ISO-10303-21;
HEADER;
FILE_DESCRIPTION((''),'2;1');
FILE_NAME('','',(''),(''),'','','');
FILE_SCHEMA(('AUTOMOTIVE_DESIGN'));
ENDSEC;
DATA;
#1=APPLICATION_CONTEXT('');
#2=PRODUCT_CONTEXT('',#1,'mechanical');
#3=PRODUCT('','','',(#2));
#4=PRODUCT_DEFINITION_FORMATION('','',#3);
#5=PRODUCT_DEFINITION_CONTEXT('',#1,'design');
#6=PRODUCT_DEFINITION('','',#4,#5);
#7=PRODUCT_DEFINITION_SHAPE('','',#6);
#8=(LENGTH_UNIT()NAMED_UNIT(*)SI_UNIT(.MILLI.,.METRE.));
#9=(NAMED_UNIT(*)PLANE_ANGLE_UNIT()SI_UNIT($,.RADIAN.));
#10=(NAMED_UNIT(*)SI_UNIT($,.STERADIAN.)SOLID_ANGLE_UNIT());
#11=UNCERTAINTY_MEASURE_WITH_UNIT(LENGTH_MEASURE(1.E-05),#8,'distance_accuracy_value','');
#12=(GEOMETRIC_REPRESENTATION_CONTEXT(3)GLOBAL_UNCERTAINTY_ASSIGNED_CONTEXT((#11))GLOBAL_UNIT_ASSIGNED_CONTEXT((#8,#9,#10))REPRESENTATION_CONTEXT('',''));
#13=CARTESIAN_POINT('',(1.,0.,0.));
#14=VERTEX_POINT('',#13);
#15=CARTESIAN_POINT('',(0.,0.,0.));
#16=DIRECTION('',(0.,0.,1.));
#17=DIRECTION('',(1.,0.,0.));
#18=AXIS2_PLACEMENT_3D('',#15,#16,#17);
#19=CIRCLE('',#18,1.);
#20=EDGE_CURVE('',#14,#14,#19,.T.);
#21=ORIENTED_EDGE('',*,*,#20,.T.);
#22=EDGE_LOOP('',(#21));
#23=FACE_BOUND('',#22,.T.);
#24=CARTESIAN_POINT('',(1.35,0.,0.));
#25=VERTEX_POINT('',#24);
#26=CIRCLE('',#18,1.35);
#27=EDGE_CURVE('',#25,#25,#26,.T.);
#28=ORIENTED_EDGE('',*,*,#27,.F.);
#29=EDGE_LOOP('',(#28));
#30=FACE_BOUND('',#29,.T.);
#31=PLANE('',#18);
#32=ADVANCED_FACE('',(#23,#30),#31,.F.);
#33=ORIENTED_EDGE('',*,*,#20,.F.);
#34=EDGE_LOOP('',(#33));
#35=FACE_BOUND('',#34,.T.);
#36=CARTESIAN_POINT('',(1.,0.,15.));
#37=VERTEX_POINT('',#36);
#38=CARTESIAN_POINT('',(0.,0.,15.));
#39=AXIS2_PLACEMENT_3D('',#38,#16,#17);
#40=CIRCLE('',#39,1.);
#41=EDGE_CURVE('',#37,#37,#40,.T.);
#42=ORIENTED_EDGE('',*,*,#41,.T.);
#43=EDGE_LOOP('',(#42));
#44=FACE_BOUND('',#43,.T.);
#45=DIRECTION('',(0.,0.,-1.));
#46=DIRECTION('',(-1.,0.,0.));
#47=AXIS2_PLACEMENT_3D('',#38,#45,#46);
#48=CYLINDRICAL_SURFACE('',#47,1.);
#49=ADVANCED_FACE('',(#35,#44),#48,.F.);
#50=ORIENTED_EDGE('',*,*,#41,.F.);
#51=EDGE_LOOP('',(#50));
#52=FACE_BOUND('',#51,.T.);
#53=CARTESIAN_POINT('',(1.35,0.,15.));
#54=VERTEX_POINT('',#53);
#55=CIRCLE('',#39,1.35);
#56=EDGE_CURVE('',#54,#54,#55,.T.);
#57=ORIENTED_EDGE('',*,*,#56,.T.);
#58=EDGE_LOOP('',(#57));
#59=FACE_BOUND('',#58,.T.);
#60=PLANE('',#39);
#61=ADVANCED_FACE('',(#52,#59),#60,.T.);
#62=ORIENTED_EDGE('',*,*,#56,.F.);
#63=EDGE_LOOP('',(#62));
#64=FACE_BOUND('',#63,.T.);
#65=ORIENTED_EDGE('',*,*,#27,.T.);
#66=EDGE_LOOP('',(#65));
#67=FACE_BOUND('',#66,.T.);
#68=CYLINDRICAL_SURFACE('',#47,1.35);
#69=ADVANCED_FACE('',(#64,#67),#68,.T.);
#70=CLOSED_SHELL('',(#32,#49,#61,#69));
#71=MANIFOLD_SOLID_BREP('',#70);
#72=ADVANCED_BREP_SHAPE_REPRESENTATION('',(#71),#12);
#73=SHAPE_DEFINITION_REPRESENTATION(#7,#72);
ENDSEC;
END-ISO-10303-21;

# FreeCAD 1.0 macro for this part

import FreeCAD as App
import Part
import Sketcher
from FreeCAD import Vector

doc = App.newDocument("Part")
body = doc.addObject("PartDesign::Body", "Body")

# Sketch on XY plane
sketch1 = doc.addObject("Sketcher::SketchObject", "Sketch")
body.addObject(sketch1)
sketch1.AttachmentSupport = (doc.XY_Plane, [""])
sketch1.MapMode = "FlatFace"
sketch1.addGeometry([
    Part.Circle(Vector(0, 0, 0), Vector(0, 0, 1), 1.4),
    Part.Circle(Vector(0, 0, 0), Vector(0, 0, 1), 1),
], False)
sketch1.addConstraint([
    Sketcher.Constraint("Coincident", 0, 3, -1, 1),
    Sketcher.Constraint("Coincident", 1, 3, -1, 1),
    Sketcher.Constraint("Diameter", 1, 2.0),
    Sketcher.Constraint("Diameter", 0, 2.7),
])
pad1 = doc.addObject("PartDesign::Pad", "Pad")
body.addObject(pad1)
pad1.Profile = sketch1
pad1.Length = 15

doc.recompute()
